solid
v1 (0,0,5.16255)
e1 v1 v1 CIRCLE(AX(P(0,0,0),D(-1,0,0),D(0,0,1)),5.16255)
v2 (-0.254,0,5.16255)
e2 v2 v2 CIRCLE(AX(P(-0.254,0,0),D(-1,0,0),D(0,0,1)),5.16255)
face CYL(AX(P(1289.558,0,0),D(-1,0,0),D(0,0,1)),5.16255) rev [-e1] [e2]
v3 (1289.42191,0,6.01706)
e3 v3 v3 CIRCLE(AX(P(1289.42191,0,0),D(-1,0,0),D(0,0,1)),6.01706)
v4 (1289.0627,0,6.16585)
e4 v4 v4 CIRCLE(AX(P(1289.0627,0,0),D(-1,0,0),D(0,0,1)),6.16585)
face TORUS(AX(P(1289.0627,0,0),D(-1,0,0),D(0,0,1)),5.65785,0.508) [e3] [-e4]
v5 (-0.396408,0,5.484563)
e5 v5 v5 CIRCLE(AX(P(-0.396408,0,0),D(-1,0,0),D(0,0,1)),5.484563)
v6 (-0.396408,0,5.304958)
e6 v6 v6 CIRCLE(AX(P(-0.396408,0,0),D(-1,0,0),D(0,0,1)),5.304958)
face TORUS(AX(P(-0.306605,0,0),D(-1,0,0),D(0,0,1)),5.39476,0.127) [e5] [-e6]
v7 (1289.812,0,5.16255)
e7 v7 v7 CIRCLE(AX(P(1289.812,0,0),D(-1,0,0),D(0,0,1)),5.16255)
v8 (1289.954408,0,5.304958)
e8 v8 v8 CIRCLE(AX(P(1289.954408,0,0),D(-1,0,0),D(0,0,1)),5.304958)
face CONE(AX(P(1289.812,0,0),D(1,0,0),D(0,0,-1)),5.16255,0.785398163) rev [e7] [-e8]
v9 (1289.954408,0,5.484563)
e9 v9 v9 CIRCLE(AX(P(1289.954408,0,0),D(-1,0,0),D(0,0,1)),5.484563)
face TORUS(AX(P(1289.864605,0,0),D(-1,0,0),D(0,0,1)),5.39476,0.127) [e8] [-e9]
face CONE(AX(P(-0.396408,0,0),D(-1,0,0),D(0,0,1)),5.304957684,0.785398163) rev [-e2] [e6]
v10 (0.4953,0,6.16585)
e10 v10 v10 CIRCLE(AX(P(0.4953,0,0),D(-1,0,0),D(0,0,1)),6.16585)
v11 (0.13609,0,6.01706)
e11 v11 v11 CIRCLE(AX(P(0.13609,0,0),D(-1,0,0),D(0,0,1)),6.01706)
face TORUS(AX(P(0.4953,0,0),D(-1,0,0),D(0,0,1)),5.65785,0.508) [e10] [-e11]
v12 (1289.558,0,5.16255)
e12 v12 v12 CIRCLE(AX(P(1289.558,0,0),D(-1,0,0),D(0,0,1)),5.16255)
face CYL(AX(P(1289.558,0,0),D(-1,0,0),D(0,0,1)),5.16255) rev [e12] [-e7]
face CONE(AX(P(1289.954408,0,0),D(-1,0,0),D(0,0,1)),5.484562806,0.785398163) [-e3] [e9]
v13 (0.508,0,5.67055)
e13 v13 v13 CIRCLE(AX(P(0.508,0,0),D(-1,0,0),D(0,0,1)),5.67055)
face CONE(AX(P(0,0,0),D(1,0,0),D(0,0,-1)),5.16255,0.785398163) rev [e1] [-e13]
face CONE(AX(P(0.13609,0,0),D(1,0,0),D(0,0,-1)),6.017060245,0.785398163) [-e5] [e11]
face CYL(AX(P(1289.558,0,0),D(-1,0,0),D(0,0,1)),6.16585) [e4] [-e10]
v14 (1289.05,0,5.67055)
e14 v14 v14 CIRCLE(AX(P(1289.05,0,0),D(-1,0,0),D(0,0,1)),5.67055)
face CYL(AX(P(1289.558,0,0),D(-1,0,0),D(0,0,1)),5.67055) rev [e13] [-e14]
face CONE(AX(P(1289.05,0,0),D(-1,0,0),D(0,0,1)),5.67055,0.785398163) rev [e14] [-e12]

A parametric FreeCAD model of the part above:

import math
import FreeCAD as App
import Part
import Sketcher
Q = App.Units.Quantity

doc = App.newDocument("Part")
body = doc.addObject("PartDesign::Body", "Body")

# Sketch on XY plane
sketch1 = body.newObject("Sketcher::SketchObject", "Sketch")
sketch1.AttachmentSupport = (doc.getObject("XY_Plane"), [""])
sketch1.MapMode = "FlatFace"
sketch1.addGeometry([
    Part.LineSegment(App.Vector(-0.4, 5.3, 0), App.Vector(-0.25, 5.16, 0)),  # 0
    Part.LineSegment(App.Vector(-0.25, 5.16, 0), App.Vector(0, 5.16, 0)),  # 1
    Part.LineSegment(App.Vector(0, 5.16, 0), App.Vector(0.51, 5.67, 0)),  # 2
    Part.LineSegment(App.Vector(0.51, 5.67, 0), App.Vector(1289.05, 5.67, 0)),  # 3
    Part.LineSegment(App.Vector(1289.05, 5.67, 0), App.Vector(1289.56, 5.16, 0)),  # 4
    Part.LineSegment(App.Vector(1289.56, 5.16, 0), App.Vector(1289.81, 5.16, 0)),  # 5
    Part.LineSegment(App.Vector(1289.81, 5.16, 0), App.Vector(1289.95, 5.3, 0)),  # 6
    Part.ArcOfCircle(Part.Circle(App.Vector(1289.86, 5.39, 0), App.Vector(0, 0, 1), 0.13), math.radians(-45), math.radians(45)),  # 7
    Part.LineSegment(App.Vector(1289.95, 5.48, 0), App.Vector(1289.42, 6.02, 0)),  # 8
    Part.ArcOfCircle(Part.Circle(App.Vector(1289.06, 5.66, 0), App.Vector(0, 0, 1), 0.51), math.radians(45), math.radians(90)),  # 9
    Part.LineSegment(App.Vector(1289.06, 6.17, 0), App.Vector(0.5, 6.17, 0)),  # 10
    Part.ArcOfCircle(Part.Circle(App.Vector(0.5, 5.66, 0), App.Vector(0, 0, 1), 0.51), math.radians(90), math.radians(135)),  # 11
    Part.LineSegment(App.Vector(0.14, 6.02, 0), App.Vector(-0.4, 5.48, 0)),  # 12
    Part.ArcOfCircle(Part.Circle(App.Vector(-0.31, 5.39, 0), App.Vector(0, 0, 1), 0.13), math.radians(135), math.radians(225)),  # 13
], False)
sketch1.addConstraint([
    Sketcher.Constraint("Coincident", 0, 2, 1, 1),
    Sketcher.Constraint("Coincident", 1, 2, 2, 1),
    Sketcher.Constraint("Coincident", 2, 2, 3, 1),
    Sketcher.Constraint("Coincident", 3, 2, 4, 1),
    Sketcher.Constraint("Coincident", 4, 2, 5, 1),
    Sketcher.Constraint("Coincident", 5, 2, 6, 1),
    Sketcher.Constraint("Tangent", 6, 2, 7, 1),
    Sketcher.Constraint("Tangent", 7, 2, 8, 1),
    Sketcher.Constraint("Tangent", 8, 2, 9, 1),
    Sketcher.Constraint("Tangent", 9, 2, 10, 1),
    Sketcher.Constraint("Tangent", 10, 2, 11, 1),
    Sketcher.Constraint("Tangent", 11, 2, 12, 1),
    Sketcher.Constraint("Tangent", 12, 2, 13, 1),
    Sketcher.Constraint("Tangent", 13, 2, 0, 1),
    Sketcher.Constraint("Horizontal", 1),
    Sketcher.Constraint("Horizontal", 3),
    Sketcher.Constraint("Horizontal", 5),
    Sketcher.Constraint("Horizontal", 10),
    Sketcher.Constraint("Equal", 9, 11),
    Sketcher.Constraint("Equal", 7, 13),
    Sketcher.Constraint("PointOnObject", 1, 2, -2),
    Sketcher.Constraint("Perpendicular", 0, 2),
    Sketcher.Constraint("Perpendicular", 2, 4),
    Sketcher.Constraint("Perpendicular", 4, 6),
    Sketcher.Constraint("Perpendicular", 6, 8),
    Sketcher.Constraint("Perpendicular", 8, 12),
    Sketcher.Constraint("Horizontal", 7, 3, 13, 3),
    Sketcher.Constraint("Horizontal", 1, 2, 4, 2),
    Sketcher.Constraint("Horizontal", 8, 2, 11, 2),
    Sketcher.Constraint("Equal", 1, 5),
    Sketcher.Constraint("Radius", 9, Q("0.02 in")),
    Sketcher.Constraint("Radius", 7, Q("0.005 in")),
    Sketcher.Constraint("DistanceX", 1, 1, 1, 2, Q("0.01 in")),
    Sketcher.Constraint("DistanceX", 3, 1, 3, 2, Q("50.73 in")),
    Sketcher.Constraint("DistanceX", 10, 2, 10, 1, Q("50.731 in")),
    Sketcher.Constraint("DistanceX", -1, 1, 2, 2, Q("0.02 in")),
    Sketcher.Constraint("DistanceY", 0, 2, 11, 3, Q("0.0195 in")),
    Sketcher.Constraint("DistanceY", -1, 1, 7, 3, 5.39476),
])
revolution = body.newObject("PartDesign::Revolution", "Revolution")
revolution.Profile = sketch1
revolution.ReferenceAxis = (sketch1, ["H_Axis"])
revolution.Angle = 360

doc.recompute()
